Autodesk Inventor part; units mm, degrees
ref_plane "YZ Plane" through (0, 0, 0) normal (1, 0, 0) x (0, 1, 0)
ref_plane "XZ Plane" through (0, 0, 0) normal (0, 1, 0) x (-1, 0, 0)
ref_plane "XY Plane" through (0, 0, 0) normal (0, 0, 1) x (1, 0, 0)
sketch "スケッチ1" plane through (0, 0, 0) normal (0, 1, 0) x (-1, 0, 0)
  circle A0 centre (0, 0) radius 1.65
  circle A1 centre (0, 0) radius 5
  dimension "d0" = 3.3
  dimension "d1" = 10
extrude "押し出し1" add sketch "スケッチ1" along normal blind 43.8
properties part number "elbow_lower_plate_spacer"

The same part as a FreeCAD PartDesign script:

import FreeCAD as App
import Part
import Sketcher
from FreeCAD import Vector

doc = App.newDocument("Part")
body = doc.addObject("PartDesign::Body", "Body")

sketch1 = body.newObject("Sketcher::SketchObject", "Sketch")
sketch1.AttachmentSupport = (doc.getObject("XZ_Plane"), [""])
sketch1.MapMode = "FlatFace"
sketch1.addGeometry([
    Part.Circle(Vector(0, 0, 0), Vector(0, 0, 1), 5),
    Part.Circle(Vector(0, 0, 0), Vector(0, 0, 1), 1.6),
], False)
sketch1.addConstraint([
    Sketcher.Constraint("Coincident", 0, 3, -1, 1),
    Sketcher.Constraint("Coincident", 1, 3, -1, 1),
    Sketcher.Constraint("Diameter", 0, 10.0),
    Sketcher.Constraint("Diameter", 1, 3.3),
])
pad1 = body.newObject("PartDesign::Pad", "Pad")
pad1.Profile = sketch1
pad1.Length = 43.8
pad1.Reversed = True

doc.recompute()
